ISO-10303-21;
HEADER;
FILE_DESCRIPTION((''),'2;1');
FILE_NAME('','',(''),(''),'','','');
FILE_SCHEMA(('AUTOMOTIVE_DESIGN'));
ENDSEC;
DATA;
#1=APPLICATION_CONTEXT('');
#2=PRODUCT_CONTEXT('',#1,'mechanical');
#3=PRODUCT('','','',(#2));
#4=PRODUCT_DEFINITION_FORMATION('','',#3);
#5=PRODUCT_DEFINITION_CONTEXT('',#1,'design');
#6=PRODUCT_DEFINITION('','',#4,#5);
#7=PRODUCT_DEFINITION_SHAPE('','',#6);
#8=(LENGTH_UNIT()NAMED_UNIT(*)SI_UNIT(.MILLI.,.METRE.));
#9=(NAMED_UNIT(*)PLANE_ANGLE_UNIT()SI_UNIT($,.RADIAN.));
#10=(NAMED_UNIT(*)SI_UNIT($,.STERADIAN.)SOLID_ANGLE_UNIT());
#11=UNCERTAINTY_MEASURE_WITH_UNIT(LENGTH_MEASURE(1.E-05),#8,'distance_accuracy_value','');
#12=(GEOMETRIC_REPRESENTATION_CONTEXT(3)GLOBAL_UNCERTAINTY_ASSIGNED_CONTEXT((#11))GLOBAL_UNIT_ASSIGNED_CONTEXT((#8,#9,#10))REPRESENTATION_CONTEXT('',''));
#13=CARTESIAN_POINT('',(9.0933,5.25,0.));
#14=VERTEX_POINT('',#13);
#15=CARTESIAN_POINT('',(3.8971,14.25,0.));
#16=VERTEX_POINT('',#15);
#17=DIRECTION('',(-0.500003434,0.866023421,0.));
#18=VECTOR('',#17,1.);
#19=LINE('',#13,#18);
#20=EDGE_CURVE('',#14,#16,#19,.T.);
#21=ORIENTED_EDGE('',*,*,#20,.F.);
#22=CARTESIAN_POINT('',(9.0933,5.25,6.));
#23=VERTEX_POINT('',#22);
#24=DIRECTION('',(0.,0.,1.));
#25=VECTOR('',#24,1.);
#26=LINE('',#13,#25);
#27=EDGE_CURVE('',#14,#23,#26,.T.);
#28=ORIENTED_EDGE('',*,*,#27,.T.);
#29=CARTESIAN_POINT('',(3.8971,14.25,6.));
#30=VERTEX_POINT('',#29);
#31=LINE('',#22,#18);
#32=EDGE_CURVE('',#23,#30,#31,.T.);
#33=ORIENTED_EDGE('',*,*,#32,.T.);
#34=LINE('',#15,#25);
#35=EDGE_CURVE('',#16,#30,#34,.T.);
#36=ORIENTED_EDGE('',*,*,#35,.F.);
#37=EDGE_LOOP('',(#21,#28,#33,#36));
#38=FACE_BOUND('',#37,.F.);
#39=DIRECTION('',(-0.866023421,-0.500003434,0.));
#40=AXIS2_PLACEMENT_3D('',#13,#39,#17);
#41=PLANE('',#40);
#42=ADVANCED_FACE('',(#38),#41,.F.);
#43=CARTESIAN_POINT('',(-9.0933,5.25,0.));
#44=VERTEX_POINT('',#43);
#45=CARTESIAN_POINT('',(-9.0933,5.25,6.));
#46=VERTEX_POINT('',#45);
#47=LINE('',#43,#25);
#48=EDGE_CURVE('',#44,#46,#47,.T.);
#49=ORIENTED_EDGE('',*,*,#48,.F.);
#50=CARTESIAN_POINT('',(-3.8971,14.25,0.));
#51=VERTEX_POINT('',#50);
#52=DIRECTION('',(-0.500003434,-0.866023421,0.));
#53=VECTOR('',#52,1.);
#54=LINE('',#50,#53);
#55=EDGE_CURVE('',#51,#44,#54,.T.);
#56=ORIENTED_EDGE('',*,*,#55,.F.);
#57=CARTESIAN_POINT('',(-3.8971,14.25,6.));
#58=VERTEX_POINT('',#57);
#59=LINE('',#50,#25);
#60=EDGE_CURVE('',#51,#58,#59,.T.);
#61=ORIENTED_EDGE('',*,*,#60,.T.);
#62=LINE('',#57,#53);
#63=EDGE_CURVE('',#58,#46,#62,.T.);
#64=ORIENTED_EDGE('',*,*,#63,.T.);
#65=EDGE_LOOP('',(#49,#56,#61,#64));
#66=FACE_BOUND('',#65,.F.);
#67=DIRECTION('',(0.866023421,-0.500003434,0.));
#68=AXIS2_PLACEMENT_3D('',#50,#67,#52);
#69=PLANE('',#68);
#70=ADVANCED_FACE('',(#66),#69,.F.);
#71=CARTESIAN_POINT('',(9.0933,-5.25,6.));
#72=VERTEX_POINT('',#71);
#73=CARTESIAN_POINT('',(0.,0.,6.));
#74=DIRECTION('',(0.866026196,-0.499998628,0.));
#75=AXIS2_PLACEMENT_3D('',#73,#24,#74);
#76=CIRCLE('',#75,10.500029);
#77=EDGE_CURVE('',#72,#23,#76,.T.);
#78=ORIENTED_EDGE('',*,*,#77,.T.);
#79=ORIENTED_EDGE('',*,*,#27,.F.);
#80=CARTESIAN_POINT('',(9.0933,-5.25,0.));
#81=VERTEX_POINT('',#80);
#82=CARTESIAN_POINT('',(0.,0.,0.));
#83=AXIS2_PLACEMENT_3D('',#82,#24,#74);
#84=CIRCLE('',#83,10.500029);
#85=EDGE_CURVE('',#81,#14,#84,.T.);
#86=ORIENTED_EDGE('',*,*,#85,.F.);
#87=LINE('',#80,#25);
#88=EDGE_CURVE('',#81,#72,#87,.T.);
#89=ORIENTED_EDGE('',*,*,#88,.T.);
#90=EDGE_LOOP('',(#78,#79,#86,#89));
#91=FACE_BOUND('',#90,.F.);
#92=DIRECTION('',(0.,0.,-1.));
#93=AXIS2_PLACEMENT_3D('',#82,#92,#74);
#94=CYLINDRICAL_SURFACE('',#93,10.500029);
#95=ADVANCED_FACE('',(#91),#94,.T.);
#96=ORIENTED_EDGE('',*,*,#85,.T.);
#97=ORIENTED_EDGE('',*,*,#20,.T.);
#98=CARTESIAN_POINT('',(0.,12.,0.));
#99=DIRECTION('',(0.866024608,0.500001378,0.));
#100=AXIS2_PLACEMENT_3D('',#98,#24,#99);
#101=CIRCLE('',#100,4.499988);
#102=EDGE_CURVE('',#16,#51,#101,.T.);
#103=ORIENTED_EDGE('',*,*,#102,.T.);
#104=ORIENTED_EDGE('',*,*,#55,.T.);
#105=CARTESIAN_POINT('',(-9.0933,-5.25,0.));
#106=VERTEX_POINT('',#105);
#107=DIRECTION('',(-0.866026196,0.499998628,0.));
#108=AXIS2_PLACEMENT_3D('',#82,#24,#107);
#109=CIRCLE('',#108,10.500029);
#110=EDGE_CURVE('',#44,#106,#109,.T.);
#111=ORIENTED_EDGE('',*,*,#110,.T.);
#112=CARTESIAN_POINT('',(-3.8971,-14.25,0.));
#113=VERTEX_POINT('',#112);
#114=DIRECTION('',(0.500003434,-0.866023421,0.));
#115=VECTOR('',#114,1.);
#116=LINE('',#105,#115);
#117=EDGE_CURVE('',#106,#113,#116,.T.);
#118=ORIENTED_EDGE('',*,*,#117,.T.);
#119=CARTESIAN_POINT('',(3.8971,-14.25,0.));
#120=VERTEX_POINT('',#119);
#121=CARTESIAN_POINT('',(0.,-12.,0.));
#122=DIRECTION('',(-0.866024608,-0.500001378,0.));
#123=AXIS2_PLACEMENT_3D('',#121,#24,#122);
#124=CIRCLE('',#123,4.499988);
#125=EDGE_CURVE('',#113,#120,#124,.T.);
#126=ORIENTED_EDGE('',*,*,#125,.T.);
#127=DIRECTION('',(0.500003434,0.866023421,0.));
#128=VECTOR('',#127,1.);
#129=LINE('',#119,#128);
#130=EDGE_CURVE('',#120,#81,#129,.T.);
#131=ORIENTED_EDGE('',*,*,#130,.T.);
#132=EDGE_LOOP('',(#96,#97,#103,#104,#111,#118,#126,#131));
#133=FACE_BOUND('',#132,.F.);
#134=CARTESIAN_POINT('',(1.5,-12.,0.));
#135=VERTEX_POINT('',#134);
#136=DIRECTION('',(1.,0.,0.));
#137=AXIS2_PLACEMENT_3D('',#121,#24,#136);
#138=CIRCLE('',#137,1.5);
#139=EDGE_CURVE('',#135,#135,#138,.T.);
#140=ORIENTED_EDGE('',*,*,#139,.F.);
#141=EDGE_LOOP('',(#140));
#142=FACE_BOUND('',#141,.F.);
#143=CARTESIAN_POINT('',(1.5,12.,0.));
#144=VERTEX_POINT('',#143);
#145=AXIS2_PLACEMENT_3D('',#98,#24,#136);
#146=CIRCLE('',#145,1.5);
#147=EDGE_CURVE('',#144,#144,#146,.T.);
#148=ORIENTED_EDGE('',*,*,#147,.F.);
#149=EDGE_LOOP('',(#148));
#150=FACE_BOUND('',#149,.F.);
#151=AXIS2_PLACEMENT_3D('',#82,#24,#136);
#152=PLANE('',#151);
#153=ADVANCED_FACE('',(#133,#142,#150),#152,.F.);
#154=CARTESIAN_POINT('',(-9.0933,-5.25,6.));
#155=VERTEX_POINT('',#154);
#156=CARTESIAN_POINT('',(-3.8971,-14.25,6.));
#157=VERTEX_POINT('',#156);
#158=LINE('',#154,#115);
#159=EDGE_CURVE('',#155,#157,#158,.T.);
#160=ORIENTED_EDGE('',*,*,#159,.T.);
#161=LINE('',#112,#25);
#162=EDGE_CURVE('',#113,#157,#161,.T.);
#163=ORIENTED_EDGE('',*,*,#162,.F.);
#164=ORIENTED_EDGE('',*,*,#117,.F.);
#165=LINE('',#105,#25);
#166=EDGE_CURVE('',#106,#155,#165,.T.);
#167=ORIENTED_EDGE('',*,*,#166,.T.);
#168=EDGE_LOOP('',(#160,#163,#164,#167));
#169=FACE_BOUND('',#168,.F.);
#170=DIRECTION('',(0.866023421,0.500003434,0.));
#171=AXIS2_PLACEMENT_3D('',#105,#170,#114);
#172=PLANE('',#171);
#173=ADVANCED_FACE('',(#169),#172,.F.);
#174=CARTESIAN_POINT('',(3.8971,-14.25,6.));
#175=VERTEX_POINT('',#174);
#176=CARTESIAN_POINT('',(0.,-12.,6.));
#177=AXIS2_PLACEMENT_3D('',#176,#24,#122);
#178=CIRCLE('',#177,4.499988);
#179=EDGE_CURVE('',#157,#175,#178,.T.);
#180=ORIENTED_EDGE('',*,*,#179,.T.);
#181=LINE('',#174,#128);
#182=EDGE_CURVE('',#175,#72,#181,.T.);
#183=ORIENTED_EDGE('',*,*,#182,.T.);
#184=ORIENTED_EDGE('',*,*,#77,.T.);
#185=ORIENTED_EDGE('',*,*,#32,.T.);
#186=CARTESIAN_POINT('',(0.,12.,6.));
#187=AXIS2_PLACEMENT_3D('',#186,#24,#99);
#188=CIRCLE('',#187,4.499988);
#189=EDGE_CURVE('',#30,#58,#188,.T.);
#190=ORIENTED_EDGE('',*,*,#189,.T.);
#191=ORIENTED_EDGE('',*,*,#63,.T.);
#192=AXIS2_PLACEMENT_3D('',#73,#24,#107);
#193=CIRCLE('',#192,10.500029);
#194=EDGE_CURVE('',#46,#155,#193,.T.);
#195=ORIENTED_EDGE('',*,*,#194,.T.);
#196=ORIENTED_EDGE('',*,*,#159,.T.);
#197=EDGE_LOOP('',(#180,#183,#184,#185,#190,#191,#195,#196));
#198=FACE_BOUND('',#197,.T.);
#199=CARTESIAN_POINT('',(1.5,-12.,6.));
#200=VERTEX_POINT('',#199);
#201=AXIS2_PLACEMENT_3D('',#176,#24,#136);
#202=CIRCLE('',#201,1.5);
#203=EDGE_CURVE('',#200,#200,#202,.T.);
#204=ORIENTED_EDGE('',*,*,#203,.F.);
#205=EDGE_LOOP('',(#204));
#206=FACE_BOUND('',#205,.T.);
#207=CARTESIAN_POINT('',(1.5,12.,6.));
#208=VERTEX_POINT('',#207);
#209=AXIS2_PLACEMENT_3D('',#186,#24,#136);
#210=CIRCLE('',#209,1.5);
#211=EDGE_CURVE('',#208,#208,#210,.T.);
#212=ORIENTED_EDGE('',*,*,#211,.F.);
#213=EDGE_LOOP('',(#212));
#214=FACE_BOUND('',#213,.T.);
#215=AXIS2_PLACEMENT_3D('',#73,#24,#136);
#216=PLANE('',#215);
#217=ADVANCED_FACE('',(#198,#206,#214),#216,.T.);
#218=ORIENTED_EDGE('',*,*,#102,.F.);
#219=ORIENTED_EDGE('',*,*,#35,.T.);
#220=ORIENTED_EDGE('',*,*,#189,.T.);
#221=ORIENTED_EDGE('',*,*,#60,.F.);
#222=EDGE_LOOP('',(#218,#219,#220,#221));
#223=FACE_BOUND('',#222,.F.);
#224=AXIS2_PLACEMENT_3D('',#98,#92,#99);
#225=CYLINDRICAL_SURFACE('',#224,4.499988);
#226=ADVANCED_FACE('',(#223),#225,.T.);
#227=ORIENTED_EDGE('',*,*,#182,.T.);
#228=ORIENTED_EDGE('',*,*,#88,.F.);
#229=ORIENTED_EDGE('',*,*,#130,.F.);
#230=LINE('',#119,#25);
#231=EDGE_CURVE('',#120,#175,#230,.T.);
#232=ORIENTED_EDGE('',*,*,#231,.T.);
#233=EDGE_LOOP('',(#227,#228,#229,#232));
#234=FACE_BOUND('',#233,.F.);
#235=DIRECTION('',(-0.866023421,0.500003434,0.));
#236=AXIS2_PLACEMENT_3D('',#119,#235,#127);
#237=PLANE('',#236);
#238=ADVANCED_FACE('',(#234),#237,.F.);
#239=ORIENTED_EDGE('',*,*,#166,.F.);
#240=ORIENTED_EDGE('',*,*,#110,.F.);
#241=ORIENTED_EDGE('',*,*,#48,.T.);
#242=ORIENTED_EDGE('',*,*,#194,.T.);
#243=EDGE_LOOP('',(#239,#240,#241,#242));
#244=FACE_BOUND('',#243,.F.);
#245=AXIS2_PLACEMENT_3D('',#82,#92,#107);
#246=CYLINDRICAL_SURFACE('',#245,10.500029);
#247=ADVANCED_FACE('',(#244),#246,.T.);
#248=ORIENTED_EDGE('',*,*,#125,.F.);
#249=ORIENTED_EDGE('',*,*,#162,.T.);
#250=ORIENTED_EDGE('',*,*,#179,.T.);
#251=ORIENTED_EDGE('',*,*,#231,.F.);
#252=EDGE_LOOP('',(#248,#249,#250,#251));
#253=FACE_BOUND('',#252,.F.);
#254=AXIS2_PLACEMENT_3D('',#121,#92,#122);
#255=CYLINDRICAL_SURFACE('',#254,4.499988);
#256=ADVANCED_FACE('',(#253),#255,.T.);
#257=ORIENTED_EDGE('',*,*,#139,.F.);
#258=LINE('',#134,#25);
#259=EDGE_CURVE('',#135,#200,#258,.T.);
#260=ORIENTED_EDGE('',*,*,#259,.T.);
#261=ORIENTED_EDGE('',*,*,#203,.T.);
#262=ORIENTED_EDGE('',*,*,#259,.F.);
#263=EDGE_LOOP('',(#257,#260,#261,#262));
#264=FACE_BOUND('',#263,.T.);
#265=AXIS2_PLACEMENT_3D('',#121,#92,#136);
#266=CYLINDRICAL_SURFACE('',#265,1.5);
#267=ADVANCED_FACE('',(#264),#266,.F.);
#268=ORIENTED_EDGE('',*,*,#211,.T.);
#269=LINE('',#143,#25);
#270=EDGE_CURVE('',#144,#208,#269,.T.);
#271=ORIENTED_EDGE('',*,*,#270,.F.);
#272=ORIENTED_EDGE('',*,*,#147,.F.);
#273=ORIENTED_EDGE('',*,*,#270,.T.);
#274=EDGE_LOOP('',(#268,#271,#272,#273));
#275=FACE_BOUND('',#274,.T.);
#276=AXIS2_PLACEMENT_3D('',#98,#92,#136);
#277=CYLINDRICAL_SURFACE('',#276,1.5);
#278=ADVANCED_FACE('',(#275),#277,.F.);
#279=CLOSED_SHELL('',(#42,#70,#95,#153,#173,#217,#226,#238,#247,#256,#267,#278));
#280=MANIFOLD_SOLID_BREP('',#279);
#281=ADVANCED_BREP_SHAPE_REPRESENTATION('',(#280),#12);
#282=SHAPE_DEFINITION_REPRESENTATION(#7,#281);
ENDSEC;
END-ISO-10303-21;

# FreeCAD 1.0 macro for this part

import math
import FreeCAD as App
import Part
import Sketcher
Q = App.Units.Quantity

doc = App.newDocument("Part")
params = doc.addObject("Spreadsheet::Sheet", "Params")
for row, (alias, value) in enumerate([
    ("sketch1_diameter", "3 mm"),
    ("sketch1_radius", "4.5 mm"),
    ("sketch1_radius2", "10.5 mm"),
    ("pad1_length", "6 mm"),
], start=1):
    params.set(f"A{row}", alias)
    params.set(f"B{row}", "=" + value)
    params.setAlias(f"B{row}", alias)

body = doc.addObject("PartDesign::Body", "Body")

# Sketch on XY plane
sketch1 = doc.addObject("Sketcher::SketchObject", "Sketch")
body.addObject(sketch1)
sketch1.AttachmentSupport = (doc.XY_Plane, [""])
sketch1.MapMode = "FlatFace"
sketch1.addGeometry([
    Part.ArcOfCircle(Part.Circle(App.Vector(0, -12, 0), App.Vector(0, 0, 1), 4.5), math.radians(-150), math.radians(-30)),  # 0
    Part.LineSegment(App.Vector(3.9, -14.2, 0), App.Vector(9.1, -5.2, 0)),  # 1
    Part.ArcOfCircle(Part.Circle(App.Vector(0, 0, 0), App.Vector(0, 0, 1), 10.5), math.radians(-30), math.radians(30)),  # 2
    Part.LineSegment(App.Vector(9.1, 5.2, 0), App.Vector(3.9, 14.2, 0)),  # 3
    Part.ArcOfCircle(Part.Circle(App.Vector(0, 12, 0), App.Vector(0, 0, 1), 4.5), math.radians(30), math.radians(150)),  # 4
    Part.LineSegment(App.Vector(-3.9, 14.2, 0), App.Vector(-9.1, 5.2, 0)),  # 5
    Part.ArcOfCircle(Part.Circle(App.Vector(0, 0, 0), App.Vector(0, 0, 1), 10.5), math.radians(150), math.radians(210)),  # 6
    Part.LineSegment(App.Vector(-9.1, -5.2, 0), App.Vector(-3.9, -14.2, 0)),  # 7
    Part.Circle(App.Vector(0, -12, 0), App.Vector(0, 0, 1), 1.5),  # 8
    Part.Circle(App.Vector(0, 12, 0), App.Vector(0, 0, 1), 1.5),  # 9
], False)
sketch1.addConstraint([
    Sketcher.Constraint("Tangent", 0, 2, 1, 1),
    Sketcher.Constraint("Tangent", 1, 2, 2, 1),
    Sketcher.Constraint("Tangent", 2, 2, 3, 1),
    Sketcher.Constraint("Tangent", 3, 2, 4, 1),
    Sketcher.Constraint("Tangent", 4, 2, 5, 1),
    Sketcher.Constraint("Tangent", 5, 2, 6, 1),
    Sketcher.Constraint("Tangent", 6, 2, 7, 1),
    Sketcher.Constraint("Tangent", 7, 2, 0, 1),
    Sketcher.Constraint("Coincident", 2, 3, -1, 1),
    Sketcher.Constraint("Coincident", 6, 3, -1, 1),
    Sketcher.Constraint("Coincident", 8, 3, 0, 3),
    Sketcher.Constraint("Coincident", 9, 3, 4, 3),
    Sketcher.Constraint("Equal", 0, 4),
    Sketcher.Constraint("Equal", 2, 6),
    Sketcher.Constraint("Equal", 8, 9),
    Sketcher.Constraint("Symmetric", 0, 3, 4, 3, -1, 1),
    Sketcher.Constraint("PointOnObject", 0, 3, -2),
    Sketcher.Constraint("Diameter", 8, Q("3 mm")),
    Sketcher.Constraint("Radius", 0, Q("4.5 mm")),
    Sketcher.Constraint("Radius", 2, Q("10.5 mm")),
    Sketcher.Constraint("Angle", 1, Q("59.9998 deg")),
])
sketch1.setExpression("Constraints[17]", "Params.sketch1_diameter")
sketch1.setExpression("Constraints[18]", "Params.sketch1_radius")
sketch1.setExpression("Constraints[19]", "Params.sketch1_radius2")
pad1 = doc.addObject("PartDesign::Pad", "Pad")
body.addObject(pad1)
pad1.Profile = sketch1
pad1.setExpression("Length", "Params.pad1_length")

doc.recompute()
